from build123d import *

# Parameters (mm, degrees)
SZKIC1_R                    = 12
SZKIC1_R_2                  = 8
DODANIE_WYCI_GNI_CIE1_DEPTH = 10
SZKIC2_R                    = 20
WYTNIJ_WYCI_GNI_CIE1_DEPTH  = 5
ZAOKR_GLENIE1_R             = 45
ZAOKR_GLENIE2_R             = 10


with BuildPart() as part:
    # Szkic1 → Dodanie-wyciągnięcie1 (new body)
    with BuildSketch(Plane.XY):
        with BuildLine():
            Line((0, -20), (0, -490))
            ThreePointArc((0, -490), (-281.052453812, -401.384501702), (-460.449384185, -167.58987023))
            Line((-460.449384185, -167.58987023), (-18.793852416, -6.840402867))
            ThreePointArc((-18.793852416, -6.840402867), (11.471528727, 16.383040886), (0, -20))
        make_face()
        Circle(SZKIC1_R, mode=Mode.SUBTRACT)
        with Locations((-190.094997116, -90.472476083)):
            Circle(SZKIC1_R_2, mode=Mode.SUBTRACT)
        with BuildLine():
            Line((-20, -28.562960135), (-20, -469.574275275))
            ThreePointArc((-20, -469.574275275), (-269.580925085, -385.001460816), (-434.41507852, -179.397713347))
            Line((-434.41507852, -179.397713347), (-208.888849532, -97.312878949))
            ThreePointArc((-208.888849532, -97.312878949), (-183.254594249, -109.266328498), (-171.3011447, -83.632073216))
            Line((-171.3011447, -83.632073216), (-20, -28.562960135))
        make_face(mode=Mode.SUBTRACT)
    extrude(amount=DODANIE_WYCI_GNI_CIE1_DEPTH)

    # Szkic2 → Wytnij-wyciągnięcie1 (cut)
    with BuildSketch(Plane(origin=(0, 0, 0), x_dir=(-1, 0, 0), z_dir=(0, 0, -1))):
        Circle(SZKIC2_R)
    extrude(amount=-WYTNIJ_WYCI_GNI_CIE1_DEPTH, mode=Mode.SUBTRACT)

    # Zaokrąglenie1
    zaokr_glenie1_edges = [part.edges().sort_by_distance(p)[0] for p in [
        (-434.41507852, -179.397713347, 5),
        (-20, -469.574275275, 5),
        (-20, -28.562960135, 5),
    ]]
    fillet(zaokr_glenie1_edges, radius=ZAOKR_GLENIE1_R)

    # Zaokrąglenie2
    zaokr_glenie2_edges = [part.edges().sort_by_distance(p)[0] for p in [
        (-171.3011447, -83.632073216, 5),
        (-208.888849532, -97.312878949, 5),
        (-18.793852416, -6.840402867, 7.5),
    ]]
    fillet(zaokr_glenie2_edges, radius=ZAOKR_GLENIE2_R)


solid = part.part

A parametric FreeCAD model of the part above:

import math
import FreeCAD as App
import Part
import Sketcher
Q = App.Units.Quantity


def edges_at(feature, points):
    """Names of the edges that pass closest to the given points."""
    edges = feature.Shape.Edges
    near = lambda p: min(range(len(edges)), key=lambda i: edges[i].distToShape(Part.Vertex(*p))[0])
    return sorted({f"Edge{near(p) + 1}" for p in points})

doc = App.newDocument("Part")
body = doc.addObject("PartDesign::Body", "Body")

sketch1 = doc.addObject("Sketcher::SketchObject", "Sketch")
body.addObject(sketch1)
sketch1.AttachmentSupport = (doc.XY_Plane, [""])
sketch1.MapMode = "FlatFace"
sketch1.addGeometry([
    Part.LineSegment(App.Vector(0, -490, 0), App.Vector(0, -20, 0)),
    Part.ArcOfCircle(Part.Circle(App.Vector(0, 0, 0), App.Vector(0, 0, 1), 20), math.radians(-90), math.radians(200)),
    Part.LineSegment(App.Vector(-18.793852, -6.840403, 0), App.Vector(-460.449384, -167.58987, 0)),
    Part.ArcOfCircle(Part.Circle(App.Vector(0, 0, 0), App.Vector(0, 0, 1), 490), math.radians(-160), math.radians(-90)),
    Part.LineSegment(App.Vector(-20, -28.56296, 0), App.Vector(-20, -469.574275, 0)),
    Part.ArcOfCircle(Part.Circle(App.Vector(0, 0, 0), App.Vector(0, 0, 1), 470), math.radians(-157.561145), math.radians(-92.438855)),
    Part.LineSegment(App.Vector(-434.415079, -179.397713, 0), App.Vector(-208.88885, -97.312879, 0)),
    Part.ArcOfCircle(Part.Circle(App.Vector(-190.094997, -90.472476, 0), App.Vector(0, 0, 1), 20), math.radians(-160), math.radians(20)),
    Part.LineSegment(App.Vector(-171.301145, -83.632073, 0), App.Vector(-20, -28.56296, 0)),
    Part.Circle(App.Vector(0, 0, 0), App.Vector(0, 0, 1), 12),
    Part.Circle(App.Vector(-190.094997, -90.472476, 0), App.Vector(0, 0, 1), 8),
], False)
sketch1.addConstraint([
    Sketcher.Constraint("Coincident", 0, 2, 1, 1),
    Sketcher.Constraint("Coincident", 1, 2, 2, 1),
    Sketcher.Constraint("Coincident", 2, 2, 3, 1),
    Sketcher.Constraint("Coincident", 3, 2, 0, 1),
    Sketcher.Constraint("Coincident", 4, 2, 5, 2),
    Sketcher.Constraint("Coincident", 5, 1, 6, 1),
    Sketcher.Constraint("Coincident", 6, 2, 7, 1),
    Sketcher.Constraint("Coincident", 7, 2, 8, 1),
    Sketcher.Constraint("Coincident", 8, 2, 4, 1),
    Sketcher.Constraint("Vertical", 0),
    Sketcher.Constraint("Vertical", 4),
    Sketcher.Constraint("Coincident", 1, 3, -1, 1),
    Sketcher.Constraint("Coincident", 3, 3, -1, 1),
    Sketcher.Constraint("Coincident", 5, 3, -1, 1),
    Sketcher.Constraint("Coincident", 9, 3, -1, 1),
    Sketcher.Constraint("Coincident", 10, 3, 7, 3),
    Sketcher.Constraint("Equal", 1, 7),
    Sketcher.Constraint("PointOnObject", 0, 2, -2),
    Sketcher.Constraint("Parallel", 2, 6),
    Sketcher.Constraint("Parallel", 6, 8),
    Sketcher.Constraint("Diameter", 9, Q("24 mm")),
    Sketcher.Constraint("Diameter", 10, Q("16 mm")),
    Sketcher.Constraint("Radius", 1, Q("20 mm")),
    Sketcher.Constraint("Radius", 3, Q("490 mm")),
    Sketcher.Constraint("Radius", 5, Q("470 mm")),
    Sketcher.Constraint("Angle", 2, Q("-160 deg")),
    Sketcher.Constraint("Distance", 6, Q("240 mm")),
    Sketcher.Constraint("DistanceX", 4, 2, -1, 1, Q("20 mm")),
    Sketcher.Constraint("DistanceY", 4, 2, 10, 3, Q("379.101799 mm")),
    Sketcher.Constraint("DistanceY", 4, 2, 4, 1, Q("441.011315 mm")),
    Sketcher.Constraint("DistanceY", 2, 2, -1, 1, Q("167.58987 mm")),
    Sketcher.Constraint("DistanceX", 6, 2, -1, 1, Q("208.88885 mm")),
])
pad1 = doc.addObject("PartDesign::Pad", "Pad")
body.addObject(pad1)
pad1.Profile = sketch1
pad1.Length = 10

sketch2 = doc.addObject("Sketcher::SketchObject", "Sketch001")
body.addObject(sketch2)
sketch2.AttachmentSupport = (doc.XY_Plane, [""])
sketch2.MapMode = "FlatFace"
sketch2.addGeometry(Part.Circle(App.Vector(0, 0, 0), App.Vector(0, 0, 1), 20), False)
sketch2.addConstraint([
    Sketcher.Constraint("Coincident", 0, 3, -1, 1),
    Sketcher.Constraint("Diameter", 0, Q("40 mm")),
])
pocket1 = doc.addObject("PartDesign::Pocket", "Pocket")
body.addObject(pocket1)
pocket1.Profile = sketch2
pocket1.Length = 5
pocket1.Reversed = True
doc.recompute()

fillet = doc.addObject("PartDesign::Fillet", "Fillet")
body.addObject(fillet)
fillet.Base = (pocket1, edges_at(pocket1, [(-434.415, -179.398, 5), (-20, -469.574, 5), (-20, -28.563, 5)]))
fillet.Radius = 45
doc.recompute()

fillet2 = doc.addObject("PartDesign::Fillet", "Fillet001")
body.addObject(fillet2)
fillet2.Base = (fillet, edges_at(fillet, [(-171.301, -83.632, 5), (-208.889, -97.313, 5), (-18.794, -6.84, 7.5)]))
fillet2.Radius = 10

doc.recompute()
